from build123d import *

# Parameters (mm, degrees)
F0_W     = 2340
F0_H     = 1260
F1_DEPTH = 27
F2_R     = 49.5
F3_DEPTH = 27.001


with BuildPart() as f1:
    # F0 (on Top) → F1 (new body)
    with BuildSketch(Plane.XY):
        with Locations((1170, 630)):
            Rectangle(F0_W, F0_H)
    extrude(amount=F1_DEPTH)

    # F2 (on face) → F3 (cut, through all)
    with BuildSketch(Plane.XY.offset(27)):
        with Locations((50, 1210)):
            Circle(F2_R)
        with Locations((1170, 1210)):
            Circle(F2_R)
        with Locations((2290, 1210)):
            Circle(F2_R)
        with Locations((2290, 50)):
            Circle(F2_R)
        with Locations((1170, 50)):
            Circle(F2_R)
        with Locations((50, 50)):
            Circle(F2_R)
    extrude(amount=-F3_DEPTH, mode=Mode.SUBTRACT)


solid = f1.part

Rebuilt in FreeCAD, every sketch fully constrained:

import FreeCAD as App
import Part
import Sketcher
Q = App.Units.Quantity


def add_polygon(sketch, points):
    """Adds a closed chain of lines whose ends are joined by coincident constraints."""
    first, n = sketch.GeometryCount, len(points)
    for a, b in zip(points, points[1:] + points[:1]):
        sketch.addGeometry(Part.LineSegment(App.Vector(*a, 0), App.Vector(*b, 0)), False)
    for i in range(n):
        sketch.addConstraint(Sketcher.Constraint("Coincident", first + i, 2, first + (i + 1) % n, 1))

doc = App.newDocument("Part")
body = doc.addObject("PartDesign::Body", "Body")

# Sketch on XY plane
sketch1 = body.newObject("Sketcher::SketchObject", "Sketch")
sketch1.AttachmentSupport = (doc.getObject("XY_Plane"), [""])
sketch1.MapMode = "FlatFace"
add_polygon(sketch1, [(0, 1260), (0, 0), (2340, 0), (2340, 1260)])  # lines 0-3
sketch1.addConstraint([
    Sketcher.Constraint("Vertical", 0),
    Sketcher.Constraint("Horizontal", 1),
    Sketcher.Constraint("Vertical", 2),
    Sketcher.Constraint("Horizontal", 3),
    Sketcher.Constraint("Coincident", 0, 2, -1, 1),
    Sketcher.Constraint("DistanceX", 1, 1, 1, 2, Q("2340 mm")),
    Sketcher.Constraint("DistanceY", 0, 2, 0, 1, Q("1260 mm")),
])
pad1 = body.newObject("PartDesign::Pad", "Pad")
pad1.Profile = sketch1
pad1.Length = 27

# Sketch on XY plane
sketch2 = body.newObject("Sketcher::SketchObject", "Sketch001")
sketch2.AttachmentSupport = (doc.getObject("XY_Plane"), [""])
sketch2.MapMode = "FlatFace"
sketch2.AttachmentOffset = App.Placement(App.Vector(0, 0, 27), App.Rotation())
sketch2.addGeometry([
    Part.Circle(App.Vector(50, 1210, 0), App.Vector(0, 0, 1), 49.5),  # 0
    Part.Circle(App.Vector(1170, 1210, 0), App.Vector(0, 0, 1), 49.5),  # 1
    Part.Circle(App.Vector(2290, 1210, 0), App.Vector(0, 0, 1), 49.5),  # 2
    Part.Circle(App.Vector(2290, 50, 0), App.Vector(0, 0, 1), 49.5),  # 3
    Part.Circle(App.Vector(1170, 50, 0), App.Vector(0, 0, 1), 49.5),  # 4
    Part.Circle(App.Vector(50, 50, 0), App.Vector(0, 0, 1), 49.5),  # 5
], False)
sketch2.addConstraint([
    Sketcher.Constraint("Equal", 0, 1),
    Sketcher.Constraint("Equal", 1, 2),
    Sketcher.Constraint("Equal", 2, 3),
    Sketcher.Constraint("Equal", 3, 4),
    Sketcher.Constraint("Equal", 4, 5),
    Sketcher.Constraint("Horizontal", 0, 3, 1, 3),
    Sketcher.Constraint("Horizontal", 1, 3, 2, 3),
    Sketcher.Constraint("Horizontal", 3, 3, 4, 3),
    Sketcher.Constraint("Horizontal", 4, 3, 5, 3),
    Sketcher.Constraint("Vertical", 2, 3, 3, 3),
    Sketcher.Constraint("Vertical", 1, 3, 4, 3),
    Sketcher.Constraint("Vertical", 0, 3, 5, 3),
    Sketcher.Constraint("Diameter", 0, Q("99 mm")),
    Sketcher.Constraint("DistanceX", -1, 1, 0, 3, Q("50 mm")),
    Sketcher.Constraint("DistanceY", -1, 1, 0, 3, Q("1210 mm")),
    Sketcher.Constraint("DistanceX", -1, 1, 1, 3, Q("1170 mm")),
    Sketcher.Constraint("DistanceX", -1, 1, 2, 3, Q("2290 mm")),
    Sketcher.Constraint("DistanceY", -1, 1, 3, 3, Q("50 mm")),
])
pocket1 = body.newObject("PartDesign::Pocket", "Pocket")
pocket1.Profile = sketch2
pocket1.Type = "ThroughAll"

doc.recompute()
